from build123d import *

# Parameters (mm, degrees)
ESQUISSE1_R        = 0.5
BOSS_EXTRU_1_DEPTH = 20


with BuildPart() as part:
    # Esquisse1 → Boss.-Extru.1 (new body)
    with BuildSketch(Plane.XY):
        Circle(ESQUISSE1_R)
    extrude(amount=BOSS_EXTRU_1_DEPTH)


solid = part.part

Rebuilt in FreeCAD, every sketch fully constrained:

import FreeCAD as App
import Part
import Sketcher

V = App.Vector

doc = App.newDocument("Part")
body = doc.addObject("PartDesign::Body", "Body")

# Sketch on XY plane
sketch1 = body.newObject("Sketcher::SketchObject", "Sketch")
sketch1.AttachmentSupport = (doc.getObject("XY_Plane"), [""])
sketch1.MapMode = "FlatFace"
sketch1.addGeometry(Part.Circle(V(0, 0, 0), V(0, 0, 1), 0.5), False)
sketch1.addConstraint(Sketcher.Constraint("Coincident", 0, 3, -1, 1))
sketch1.addConstraint(Sketcher.Constraint("Diameter", 0, 1.0))
pad1 = body.newObject("PartDesign::Pad", "Pad")
pad1.Profile = sketch1
pad1.Length = 20

doc.recompute()
